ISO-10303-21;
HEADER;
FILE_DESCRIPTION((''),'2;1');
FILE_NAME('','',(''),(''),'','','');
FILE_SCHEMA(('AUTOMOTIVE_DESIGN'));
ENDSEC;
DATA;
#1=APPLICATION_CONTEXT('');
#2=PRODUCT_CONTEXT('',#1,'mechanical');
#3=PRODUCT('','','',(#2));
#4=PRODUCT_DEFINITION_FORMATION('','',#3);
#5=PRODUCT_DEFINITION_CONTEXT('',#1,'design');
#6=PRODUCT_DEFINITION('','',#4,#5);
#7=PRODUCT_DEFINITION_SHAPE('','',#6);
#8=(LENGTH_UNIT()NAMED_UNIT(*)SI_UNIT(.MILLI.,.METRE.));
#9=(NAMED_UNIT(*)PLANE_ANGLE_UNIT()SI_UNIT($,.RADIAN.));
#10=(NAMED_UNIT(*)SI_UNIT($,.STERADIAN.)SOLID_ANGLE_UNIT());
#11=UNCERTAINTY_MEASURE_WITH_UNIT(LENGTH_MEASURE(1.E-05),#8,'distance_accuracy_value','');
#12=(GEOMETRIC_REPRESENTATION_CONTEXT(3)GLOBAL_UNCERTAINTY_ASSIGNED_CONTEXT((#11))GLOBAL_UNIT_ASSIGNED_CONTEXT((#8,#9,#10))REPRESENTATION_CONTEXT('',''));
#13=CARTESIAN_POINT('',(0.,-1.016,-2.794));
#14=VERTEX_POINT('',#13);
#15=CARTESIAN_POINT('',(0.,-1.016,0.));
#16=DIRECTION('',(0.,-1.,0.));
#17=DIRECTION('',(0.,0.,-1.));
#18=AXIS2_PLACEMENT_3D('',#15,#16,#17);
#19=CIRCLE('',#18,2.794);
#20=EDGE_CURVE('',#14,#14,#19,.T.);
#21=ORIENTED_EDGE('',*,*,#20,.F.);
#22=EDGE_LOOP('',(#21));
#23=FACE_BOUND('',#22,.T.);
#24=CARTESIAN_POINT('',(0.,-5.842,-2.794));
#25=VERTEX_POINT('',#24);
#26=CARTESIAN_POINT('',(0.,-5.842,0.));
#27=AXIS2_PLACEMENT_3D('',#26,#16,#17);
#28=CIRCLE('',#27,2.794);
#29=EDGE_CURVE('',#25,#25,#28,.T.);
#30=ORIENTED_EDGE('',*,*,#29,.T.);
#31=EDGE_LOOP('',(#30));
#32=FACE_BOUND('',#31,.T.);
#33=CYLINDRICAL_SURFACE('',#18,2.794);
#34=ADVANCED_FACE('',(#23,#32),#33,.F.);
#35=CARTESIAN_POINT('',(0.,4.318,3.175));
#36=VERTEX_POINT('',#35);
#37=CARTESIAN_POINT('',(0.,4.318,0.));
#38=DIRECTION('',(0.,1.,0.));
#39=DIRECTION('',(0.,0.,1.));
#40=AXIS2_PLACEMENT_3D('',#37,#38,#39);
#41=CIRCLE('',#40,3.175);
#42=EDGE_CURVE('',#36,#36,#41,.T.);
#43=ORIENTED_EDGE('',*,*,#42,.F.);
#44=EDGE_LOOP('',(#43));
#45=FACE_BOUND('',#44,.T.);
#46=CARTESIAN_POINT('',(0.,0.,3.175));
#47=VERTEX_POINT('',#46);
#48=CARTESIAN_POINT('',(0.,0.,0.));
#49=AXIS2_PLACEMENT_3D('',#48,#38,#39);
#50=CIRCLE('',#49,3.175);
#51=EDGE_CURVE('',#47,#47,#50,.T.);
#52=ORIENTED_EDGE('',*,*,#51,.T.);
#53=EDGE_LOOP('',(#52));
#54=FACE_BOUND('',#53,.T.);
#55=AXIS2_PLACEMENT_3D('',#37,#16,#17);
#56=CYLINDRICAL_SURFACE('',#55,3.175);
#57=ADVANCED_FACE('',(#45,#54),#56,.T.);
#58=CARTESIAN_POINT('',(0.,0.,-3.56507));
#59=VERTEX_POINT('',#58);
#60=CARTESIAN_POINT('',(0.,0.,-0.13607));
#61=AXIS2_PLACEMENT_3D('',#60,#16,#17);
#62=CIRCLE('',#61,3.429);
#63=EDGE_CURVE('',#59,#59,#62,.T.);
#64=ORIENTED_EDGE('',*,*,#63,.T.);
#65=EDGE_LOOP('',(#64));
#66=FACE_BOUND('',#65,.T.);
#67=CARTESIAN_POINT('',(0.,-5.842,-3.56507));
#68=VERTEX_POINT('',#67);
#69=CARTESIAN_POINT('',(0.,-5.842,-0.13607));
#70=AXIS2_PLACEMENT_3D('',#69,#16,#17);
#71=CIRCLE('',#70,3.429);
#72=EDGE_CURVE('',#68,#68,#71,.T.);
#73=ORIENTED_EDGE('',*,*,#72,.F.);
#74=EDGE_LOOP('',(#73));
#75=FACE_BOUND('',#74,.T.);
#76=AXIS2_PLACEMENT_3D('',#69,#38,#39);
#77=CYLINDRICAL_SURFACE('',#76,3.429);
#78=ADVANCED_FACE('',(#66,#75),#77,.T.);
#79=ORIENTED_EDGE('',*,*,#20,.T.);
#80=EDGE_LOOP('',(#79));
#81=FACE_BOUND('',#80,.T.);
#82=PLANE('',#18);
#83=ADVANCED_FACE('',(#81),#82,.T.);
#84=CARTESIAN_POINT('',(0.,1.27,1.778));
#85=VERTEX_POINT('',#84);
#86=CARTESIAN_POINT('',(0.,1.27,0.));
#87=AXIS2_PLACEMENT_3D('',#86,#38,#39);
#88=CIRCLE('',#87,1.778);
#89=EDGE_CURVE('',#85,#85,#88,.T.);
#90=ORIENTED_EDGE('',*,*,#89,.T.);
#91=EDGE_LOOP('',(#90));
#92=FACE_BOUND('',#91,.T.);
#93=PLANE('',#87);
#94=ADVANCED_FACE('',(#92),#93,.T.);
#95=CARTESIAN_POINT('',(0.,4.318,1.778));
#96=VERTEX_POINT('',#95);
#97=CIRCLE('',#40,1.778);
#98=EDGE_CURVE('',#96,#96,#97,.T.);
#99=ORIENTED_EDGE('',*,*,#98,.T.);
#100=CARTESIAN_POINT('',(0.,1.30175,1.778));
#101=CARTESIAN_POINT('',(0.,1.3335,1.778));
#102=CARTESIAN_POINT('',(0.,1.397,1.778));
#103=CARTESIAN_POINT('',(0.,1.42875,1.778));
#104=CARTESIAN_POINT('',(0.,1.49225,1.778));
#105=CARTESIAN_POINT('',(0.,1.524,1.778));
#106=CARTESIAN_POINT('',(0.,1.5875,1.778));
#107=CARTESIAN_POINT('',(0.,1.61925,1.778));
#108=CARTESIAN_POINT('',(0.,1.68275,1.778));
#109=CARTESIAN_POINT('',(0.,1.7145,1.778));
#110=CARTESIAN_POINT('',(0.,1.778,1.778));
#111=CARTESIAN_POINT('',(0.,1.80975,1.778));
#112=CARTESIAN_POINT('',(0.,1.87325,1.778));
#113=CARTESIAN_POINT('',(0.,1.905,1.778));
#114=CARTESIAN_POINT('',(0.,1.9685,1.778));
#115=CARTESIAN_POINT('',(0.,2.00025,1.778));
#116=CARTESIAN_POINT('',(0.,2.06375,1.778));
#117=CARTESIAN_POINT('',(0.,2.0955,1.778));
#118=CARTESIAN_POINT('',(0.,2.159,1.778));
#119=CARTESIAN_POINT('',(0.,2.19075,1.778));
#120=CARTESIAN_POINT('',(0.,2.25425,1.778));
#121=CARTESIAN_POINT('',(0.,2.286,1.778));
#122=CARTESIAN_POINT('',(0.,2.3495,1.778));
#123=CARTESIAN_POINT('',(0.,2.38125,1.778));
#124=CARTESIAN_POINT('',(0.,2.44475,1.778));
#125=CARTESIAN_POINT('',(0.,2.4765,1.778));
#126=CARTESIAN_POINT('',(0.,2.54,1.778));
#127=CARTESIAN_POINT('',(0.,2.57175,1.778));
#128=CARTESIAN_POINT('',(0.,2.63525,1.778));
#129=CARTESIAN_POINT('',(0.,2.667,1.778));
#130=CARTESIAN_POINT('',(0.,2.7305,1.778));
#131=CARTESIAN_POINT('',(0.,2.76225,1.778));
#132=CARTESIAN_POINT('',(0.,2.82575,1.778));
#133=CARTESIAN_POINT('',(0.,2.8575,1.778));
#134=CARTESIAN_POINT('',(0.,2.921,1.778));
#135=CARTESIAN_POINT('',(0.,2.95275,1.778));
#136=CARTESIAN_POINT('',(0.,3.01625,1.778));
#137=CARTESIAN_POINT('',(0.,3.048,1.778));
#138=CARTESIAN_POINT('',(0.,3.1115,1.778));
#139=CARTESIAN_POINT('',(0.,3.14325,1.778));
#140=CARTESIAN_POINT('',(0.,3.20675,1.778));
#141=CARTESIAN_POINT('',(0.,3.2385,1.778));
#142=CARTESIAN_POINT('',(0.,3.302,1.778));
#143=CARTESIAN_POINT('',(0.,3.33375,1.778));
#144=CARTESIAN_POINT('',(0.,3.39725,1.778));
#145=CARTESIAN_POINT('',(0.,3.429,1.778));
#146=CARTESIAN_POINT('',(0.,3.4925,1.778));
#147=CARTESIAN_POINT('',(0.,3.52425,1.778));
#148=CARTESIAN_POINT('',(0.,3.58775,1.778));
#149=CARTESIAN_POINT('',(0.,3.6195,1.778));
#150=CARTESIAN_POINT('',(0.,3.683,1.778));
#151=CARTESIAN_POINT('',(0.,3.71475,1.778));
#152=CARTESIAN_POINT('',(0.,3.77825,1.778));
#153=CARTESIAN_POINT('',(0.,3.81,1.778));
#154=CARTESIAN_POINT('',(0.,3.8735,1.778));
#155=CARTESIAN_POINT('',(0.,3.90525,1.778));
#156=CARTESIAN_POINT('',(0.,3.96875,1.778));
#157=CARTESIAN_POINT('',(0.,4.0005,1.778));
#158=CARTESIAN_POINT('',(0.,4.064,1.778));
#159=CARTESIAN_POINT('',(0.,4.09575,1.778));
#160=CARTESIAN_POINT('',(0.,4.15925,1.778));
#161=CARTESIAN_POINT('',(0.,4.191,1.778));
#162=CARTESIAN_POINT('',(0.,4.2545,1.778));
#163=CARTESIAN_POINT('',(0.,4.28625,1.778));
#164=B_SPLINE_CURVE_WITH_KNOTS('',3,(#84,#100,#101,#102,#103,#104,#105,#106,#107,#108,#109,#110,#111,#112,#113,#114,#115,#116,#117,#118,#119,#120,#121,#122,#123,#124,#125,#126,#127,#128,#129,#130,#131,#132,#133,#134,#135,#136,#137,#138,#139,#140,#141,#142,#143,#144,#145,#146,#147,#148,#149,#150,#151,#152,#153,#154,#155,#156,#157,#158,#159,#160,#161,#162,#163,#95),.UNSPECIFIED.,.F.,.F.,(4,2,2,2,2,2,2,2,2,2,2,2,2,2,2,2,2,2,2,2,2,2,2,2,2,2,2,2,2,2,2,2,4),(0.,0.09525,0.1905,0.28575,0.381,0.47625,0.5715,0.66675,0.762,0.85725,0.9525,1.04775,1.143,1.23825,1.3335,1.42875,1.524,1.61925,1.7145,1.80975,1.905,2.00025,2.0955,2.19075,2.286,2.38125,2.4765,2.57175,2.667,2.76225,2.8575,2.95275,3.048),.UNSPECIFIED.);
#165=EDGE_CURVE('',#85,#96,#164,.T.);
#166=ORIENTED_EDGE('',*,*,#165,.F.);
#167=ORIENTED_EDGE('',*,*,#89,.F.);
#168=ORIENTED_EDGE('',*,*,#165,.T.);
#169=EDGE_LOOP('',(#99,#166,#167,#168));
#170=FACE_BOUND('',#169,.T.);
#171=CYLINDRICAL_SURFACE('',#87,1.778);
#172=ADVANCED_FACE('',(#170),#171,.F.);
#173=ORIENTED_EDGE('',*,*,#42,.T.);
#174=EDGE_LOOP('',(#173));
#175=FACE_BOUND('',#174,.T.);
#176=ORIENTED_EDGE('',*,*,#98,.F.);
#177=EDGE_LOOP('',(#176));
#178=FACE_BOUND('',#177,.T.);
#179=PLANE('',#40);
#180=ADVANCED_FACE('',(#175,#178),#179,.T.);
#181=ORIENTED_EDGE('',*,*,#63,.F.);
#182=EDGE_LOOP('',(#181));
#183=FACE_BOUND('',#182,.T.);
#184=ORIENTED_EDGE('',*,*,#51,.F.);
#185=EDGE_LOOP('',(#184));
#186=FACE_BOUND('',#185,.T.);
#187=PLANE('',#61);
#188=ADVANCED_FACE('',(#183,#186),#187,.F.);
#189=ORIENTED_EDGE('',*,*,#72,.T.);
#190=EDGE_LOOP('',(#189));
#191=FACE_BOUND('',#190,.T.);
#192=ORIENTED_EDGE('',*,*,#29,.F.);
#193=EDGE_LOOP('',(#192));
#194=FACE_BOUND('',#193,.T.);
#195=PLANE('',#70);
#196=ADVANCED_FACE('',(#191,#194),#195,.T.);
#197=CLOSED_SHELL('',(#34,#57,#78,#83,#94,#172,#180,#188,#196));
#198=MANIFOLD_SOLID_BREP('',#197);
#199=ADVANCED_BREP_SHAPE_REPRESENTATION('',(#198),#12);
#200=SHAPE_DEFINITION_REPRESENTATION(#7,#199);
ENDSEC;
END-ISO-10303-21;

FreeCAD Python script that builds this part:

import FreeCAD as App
import Part
import Sketcher

V = App.Vector
Q = App.Units.Quantity

doc = App.newDocument("Part")
body = doc.addObject("PartDesign::Body", "Body")

sketch1 = body.newObject("Sketcher::SketchObject", "Sketch")
sketch1.AttachmentSupport = (doc.getObject("XZ_Plane"), [""])
sketch1.MapMode = "FlatFace"
sketch1.addGeometry(Part.Circle(V(0, 0, 0), V(0, 0, 1), 3.2), False)
sketch1.addConstraint([
    Sketcher.Constraint("Coincident", 0, 3, -1, 1),
    Sketcher.Constraint("Diameter", 0, Q("0.25 in")),
])
pad1 = body.newObject("PartDesign::Pad", "Pad")
pad1.Profile = sketch1
pad1.Length = Q("0.17 in")
pad1.Reversed = True

sketch2 = body.newObject("Sketcher::SketchObject", "Sketch001")
sketch2.AttachmentSupport = (doc.getObject("XZ_Plane"), [""])
sketch2.MapMode = "FlatFace"
sketch2.AttachmentOffset = App.Placement(V(0, 0, -0.17 * 25.4), App.Rotation())
sketch2.addGeometry(Part.Circle(V(0, 0, 0), V(0, 0, 1), 1.8), False)
sketch2.addConstraint([
    Sketcher.Constraint("Coincident", 0, 3, -1, 1),
    Sketcher.Constraint("Diameter", 0, Q("0.14 in")),
])
pocket1 = body.newObject("PartDesign::Pocket", "Pocket")
pocket1.Profile = sketch2
pocket1.Length = Q("0.12 in")
pocket1.Reversed = True

sketch3 = body.newObject("Sketcher::SketchObject", "Sketch002")
sketch3.AttachmentSupport = (doc.getObject("XZ_Plane"), [""])
sketch3.MapMode = "FlatFace"
sketch3.addGeometry(Part.Circle(V(0, -0.1, 0), V(0, 0, 1), 3.4), False)
sketch3.addConstraint([
    Sketcher.Constraint("PointOnObject", 0, 3, -2),
    Sketcher.Constraint("Diameter", 0, Q("0.27 in")),
    Sketcher.Constraint("DistanceY", 0, 3, -1, 1, Q("0.13607 mm")),
])
pad2 = body.newObject("PartDesign::Pad", "Pad001")
pad2.Profile = sketch3
pad2.Length = Q("0.23 in")

sketch4 = body.newObject("Sketcher::SketchObject", "Sketch003")
sketch4.AttachmentSupport = (doc.getObject("XZ_Plane"), [""])
sketch4.MapMode = "FlatFace"
sketch4.AttachmentOffset = App.Placement(V(0, 0, 0.23 * 25.4), App.Rotation())
sketch4.addGeometry(Part.Circle(V(0, 0, 0), V(0, 0, 1), 2.8), False)
sketch4.addConstraint([
    Sketcher.Constraint("Coincident", 0, 3, -1, 1),
    Sketcher.Constraint("Diameter", 0, Q("0.22 in")),
])
pocket2 = body.newObject("PartDesign::Pocket", "Pocket001")
pocket2.Profile = sketch4
pocket2.Length = Q("0.19 in")

doc.recompute()
